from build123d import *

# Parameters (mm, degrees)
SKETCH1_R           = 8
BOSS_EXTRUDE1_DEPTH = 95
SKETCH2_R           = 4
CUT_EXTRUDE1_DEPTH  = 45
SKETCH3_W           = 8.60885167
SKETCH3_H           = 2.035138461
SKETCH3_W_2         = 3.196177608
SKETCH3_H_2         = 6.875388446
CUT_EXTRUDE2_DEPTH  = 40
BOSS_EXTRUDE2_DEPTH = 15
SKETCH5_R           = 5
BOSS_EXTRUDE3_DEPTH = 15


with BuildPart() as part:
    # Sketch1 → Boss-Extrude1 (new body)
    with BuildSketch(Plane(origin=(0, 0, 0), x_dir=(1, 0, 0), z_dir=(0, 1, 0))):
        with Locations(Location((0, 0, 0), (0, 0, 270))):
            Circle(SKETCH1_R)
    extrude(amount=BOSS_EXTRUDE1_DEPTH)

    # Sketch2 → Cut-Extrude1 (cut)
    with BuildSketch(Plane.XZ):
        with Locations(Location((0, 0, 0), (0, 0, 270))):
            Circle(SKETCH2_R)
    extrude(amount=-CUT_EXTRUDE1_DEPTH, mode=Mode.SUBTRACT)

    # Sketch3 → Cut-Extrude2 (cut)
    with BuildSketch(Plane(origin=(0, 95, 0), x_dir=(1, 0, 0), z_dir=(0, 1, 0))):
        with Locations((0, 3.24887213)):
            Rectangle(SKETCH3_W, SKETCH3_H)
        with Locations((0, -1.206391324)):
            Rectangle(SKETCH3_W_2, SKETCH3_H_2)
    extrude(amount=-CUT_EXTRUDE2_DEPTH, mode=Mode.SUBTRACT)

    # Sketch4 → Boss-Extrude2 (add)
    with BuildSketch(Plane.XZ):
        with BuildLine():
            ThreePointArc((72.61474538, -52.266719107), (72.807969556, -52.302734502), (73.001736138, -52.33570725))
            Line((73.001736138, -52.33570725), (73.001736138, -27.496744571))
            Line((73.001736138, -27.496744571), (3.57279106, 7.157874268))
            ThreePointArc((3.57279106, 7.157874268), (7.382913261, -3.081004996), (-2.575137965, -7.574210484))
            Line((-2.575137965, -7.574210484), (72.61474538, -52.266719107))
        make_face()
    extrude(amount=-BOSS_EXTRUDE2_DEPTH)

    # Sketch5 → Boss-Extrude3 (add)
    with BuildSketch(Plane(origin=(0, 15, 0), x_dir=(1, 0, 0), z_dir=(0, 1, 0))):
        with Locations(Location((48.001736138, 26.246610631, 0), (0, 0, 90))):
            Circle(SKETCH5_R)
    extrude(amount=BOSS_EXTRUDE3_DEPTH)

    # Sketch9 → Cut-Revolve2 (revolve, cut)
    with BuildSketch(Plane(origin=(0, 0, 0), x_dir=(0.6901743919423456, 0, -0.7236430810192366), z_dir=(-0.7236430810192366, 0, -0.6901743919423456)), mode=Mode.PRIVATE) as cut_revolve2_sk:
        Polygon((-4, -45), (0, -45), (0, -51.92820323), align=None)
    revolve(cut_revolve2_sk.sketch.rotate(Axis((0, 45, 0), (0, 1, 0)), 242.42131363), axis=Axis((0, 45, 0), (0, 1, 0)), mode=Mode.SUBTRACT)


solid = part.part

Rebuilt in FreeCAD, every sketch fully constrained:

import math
import FreeCAD as App
import Part
import Sketcher

V = App.Vector
Q = App.Units.Quantity


def add_polygon(sketch, points):
    """Adds a closed chain of lines whose ends are joined by coincident constraints."""
    first, n = sketch.GeometryCount, len(points)
    for a, b in zip(points, points[1:] + points[:1]):
        sketch.addGeometry(Part.LineSegment(App.Vector(*a, 0), App.Vector(*b, 0)), False)
    for i in range(n):
        sketch.addConstraint(Sketcher.Constraint("Coincident", first + i, 2, first + (i + 1) % n, 1))

doc = App.newDocument("Part")
body = doc.addObject("PartDesign::Body", "Body")

sketch1 = doc.addObject("Sketcher::SketchObject", "Sketch")
body.addObject(sketch1)
sketch1.AttachmentSupport = (doc.XZ_Plane, [""])
sketch1.MapMode = "FlatFace"
sketch1.addGeometry(Part.Circle(V(0, 0, 0), V(0, 0, 1), 8), False)
sketch1.addConstraint([
    Sketcher.Constraint("Coincident", 0, 3, -1, 1),
    Sketcher.Constraint("Diameter", 0, 16.0),
])
pad1 = doc.addObject("PartDesign::Pad", "Pad")
body.addObject(pad1)
pad1.Profile = sketch1
pad1.Length = 95
pad1.Reversed = True

sketch2 = doc.addObject("Sketcher::SketchObject", "Sketch001")
body.addObject(sketch2)
sketch2.AttachmentSupport = (doc.XZ_Plane, [""])
sketch2.MapMode = "FlatFace"
sketch2.addGeometry(Part.Circle(V(0, 0, 0), V(0, 0, 1), 4), False)
sketch2.addConstraint([
    Sketcher.Constraint("Coincident", 0, 3, -1, 1),
    Sketcher.Constraint("Diameter", 0, 8.0),
])
pocket1 = doc.addObject("PartDesign::Pocket", "Pocket")
body.addObject(pocket1)
pocket1.Profile = sketch2
pocket1.Length = 45

sketch3 = doc.addObject("Sketcher::SketchObject", "Sketch002")
body.addObject(sketch3)
sketch3.AttachmentSupport = (doc.XZ_Plane, [""])
sketch3.MapMode = "FlatFace"
sketch3.AttachmentOffset = App.Placement(V(0, 0, -95), App.Rotation())
add_polygon(sketch3, [(-4.3, -4.3), (-4.3, -2.2), (-1.6, -2.2), (-1.6, 4.6), (1.6, 4.6), (1.6, -2.2), (4.3, -2.2), (4.3, -4.3)])
sketch3.addConstraint([
    Sketcher.Constraint("Vertical", 0),
    Sketcher.Constraint("Horizontal", 1),
    Sketcher.Constraint("Vertical", 2),
    Sketcher.Constraint("Horizontal", 3),
    Sketcher.Constraint("Vertical", 4),
    Sketcher.Constraint("Horizontal", 5),
    Sketcher.Constraint("Vertical", 6),
    Sketcher.Constraint("Horizontal", 7),
    Sketcher.Constraint("Symmetric", 1, 2, 4, 2, -2),
    Sketcher.Constraint("Equal", 1, 5),
    Sketcher.Constraint("DistanceX", 7, 2, 7, 1, 8.608852),
    Sketcher.Constraint("DistanceY", 0, 1, 0, 2, 2.035138),
    Sketcher.Constraint("DistanceY", 2, 1, 2, 2, 6.875388),
    Sketcher.Constraint("DistanceX", 1, 1, 1, 2, 2.706337),
    Sketcher.Constraint("DistanceY", 6, 2, -1, 1, 4.266441),
])
pocket2 = doc.addObject("PartDesign::Pocket", "Pocket001")
body.addObject(pocket2)
pocket2.Profile = sketch3
pocket2.Length = 40
pocket2.Reversed = True

sketch4 = doc.addObject("Sketcher::SketchObject", "Sketch003")
body.addObject(sketch4)
sketch4.AttachmentSupport = (doc.XZ_Plane, [""])
sketch4.MapMode = "FlatFace"
sketch4.addGeometry([
    Part.ArcOfCircle(Part.Circle(V(75, -40, 0), V(0, 0, 1), 12.5), math.radians(-101.01), math.radians(-99.21)),
    Part.LineSegment(V(73, -52.34, 0), V(73, -27.5, 0)),
    Part.LineSegment(V(73, -27.5, 0), V(3.57, 7.16, 0)),
    Part.ArcOfCircle(Part.Circle(V(0, 0, 0), V(0, 0, 1), 8), math.radians(-109), math.radians(63)),
    Part.LineSegment(V(-2.58, -7.57, 0), V(72.61, -52.27, 0)),
], False)
sketch4.addConstraint([
    Sketcher.Constraint("Coincident", 0, 2, 1, 1),
    Sketcher.Constraint("Coincident", 1, 2, 2, 1),
    Sketcher.Constraint("Coincident", 2, 2, 3, 2),
    Sketcher.Constraint("Coincident", 3, 1, 4, 1),
    Sketcher.Constraint("Coincident", 4, 2, 0, 1),
    Sketcher.Constraint("Vertical", 1),
    Sketcher.Constraint("Coincident", 3, 3, -1, 1),
    Sketcher.Constraint("Radius", 3, 8.0),
    Sketcher.Constraint("Radius", 0, 12.499998),
    Sketcher.Constraint("DistanceX", 0, 2, 0, 3, 2.0),
    Sketcher.Constraint("DistanceY", 0, 3, 1, 2, 12.500002),
    Sketcher.Constraint("Distance", 2, 77.597171),
    Sketcher.Constraint("DistanceX", -1, 1, 2, 2, 3.572791),
    Sketcher.Constraint("DistanceY", 3, 1, -1, 1, 7.57421),
    Sketcher.Constraint("DistanceY", 4, 2, -1, 1, 52.266719),
    Sketcher.Constraint("DistanceY", 1, 2, 2, 2, 34.654619),
])
pad2 = doc.addObject("PartDesign::Pad", "Pad001")
body.addObject(pad2)
pad2.Profile = sketch4
pad2.Length = 15
pad2.Reversed = True

sketch5 = doc.addObject("Sketcher::SketchObject", "Sketch004")
body.addObject(sketch5)
sketch5.AttachmentSupport = (doc.XZ_Plane, [""])
sketch5.MapMode = "FlatFace"
sketch5.AttachmentOffset = App.Placement(V(0, 0, -15), App.Rotation())
sketch5.addGeometry(Part.Circle(V(48, -26, 0), V(0, 0, 1), 5), False)
sketch5.addConstraint([
    Sketcher.Constraint("Diameter", 0, 10.0),
    Sketcher.Constraint("DistanceY", 0, 3, -1, 1, 26.246611),
    Sketcher.Constraint("DistanceX", -1, 1, 0, 3, 48.001736),
])
pad3 = doc.addObject("PartDesign::Pad", "Pad002")
body.addObject(pad3)
pad3.Profile = sketch5
pad3.Length = 15
pad3.Reversed = True

sketch6 = doc.addObject("Sketcher::SketchObject", "Sketch005")
body.addObject(sketch6)
sketch6.Placement = App.Placement(V(0, 0, 0), App.Rotation(V(0.690174392, 0, -0.723643081), V(0, -1, 0), V(-0.723643081, 0, -0.690174392), "ZXY"))
add_polygon(sketch6, [(0, -45), (-4, -45), (0, -51.9)])
sketch6.addConstraint([
    Sketcher.Constraint("Horizontal", 0),
    Sketcher.Constraint("Vertical", 2),
    Sketcher.Constraint("PointOnObject", 1, 2, -2),
    Sketcher.Constraint("DistanceX", 0, 2, 0, 1, 4.0),
    Sketcher.Constraint("Angle", 1, Q("-60 deg")),
    Sketcher.Constraint("DistanceY", 0, 2, -1, 1, 45.0),
])
groove = doc.addObject("PartDesign::Groove", "Groove")
body.addObject(groove)
groove.Profile = sketch6
groove.ReferenceAxis = (sketch6, ["V_Axis"])
groove.Angle = 360

doc.recompute()
